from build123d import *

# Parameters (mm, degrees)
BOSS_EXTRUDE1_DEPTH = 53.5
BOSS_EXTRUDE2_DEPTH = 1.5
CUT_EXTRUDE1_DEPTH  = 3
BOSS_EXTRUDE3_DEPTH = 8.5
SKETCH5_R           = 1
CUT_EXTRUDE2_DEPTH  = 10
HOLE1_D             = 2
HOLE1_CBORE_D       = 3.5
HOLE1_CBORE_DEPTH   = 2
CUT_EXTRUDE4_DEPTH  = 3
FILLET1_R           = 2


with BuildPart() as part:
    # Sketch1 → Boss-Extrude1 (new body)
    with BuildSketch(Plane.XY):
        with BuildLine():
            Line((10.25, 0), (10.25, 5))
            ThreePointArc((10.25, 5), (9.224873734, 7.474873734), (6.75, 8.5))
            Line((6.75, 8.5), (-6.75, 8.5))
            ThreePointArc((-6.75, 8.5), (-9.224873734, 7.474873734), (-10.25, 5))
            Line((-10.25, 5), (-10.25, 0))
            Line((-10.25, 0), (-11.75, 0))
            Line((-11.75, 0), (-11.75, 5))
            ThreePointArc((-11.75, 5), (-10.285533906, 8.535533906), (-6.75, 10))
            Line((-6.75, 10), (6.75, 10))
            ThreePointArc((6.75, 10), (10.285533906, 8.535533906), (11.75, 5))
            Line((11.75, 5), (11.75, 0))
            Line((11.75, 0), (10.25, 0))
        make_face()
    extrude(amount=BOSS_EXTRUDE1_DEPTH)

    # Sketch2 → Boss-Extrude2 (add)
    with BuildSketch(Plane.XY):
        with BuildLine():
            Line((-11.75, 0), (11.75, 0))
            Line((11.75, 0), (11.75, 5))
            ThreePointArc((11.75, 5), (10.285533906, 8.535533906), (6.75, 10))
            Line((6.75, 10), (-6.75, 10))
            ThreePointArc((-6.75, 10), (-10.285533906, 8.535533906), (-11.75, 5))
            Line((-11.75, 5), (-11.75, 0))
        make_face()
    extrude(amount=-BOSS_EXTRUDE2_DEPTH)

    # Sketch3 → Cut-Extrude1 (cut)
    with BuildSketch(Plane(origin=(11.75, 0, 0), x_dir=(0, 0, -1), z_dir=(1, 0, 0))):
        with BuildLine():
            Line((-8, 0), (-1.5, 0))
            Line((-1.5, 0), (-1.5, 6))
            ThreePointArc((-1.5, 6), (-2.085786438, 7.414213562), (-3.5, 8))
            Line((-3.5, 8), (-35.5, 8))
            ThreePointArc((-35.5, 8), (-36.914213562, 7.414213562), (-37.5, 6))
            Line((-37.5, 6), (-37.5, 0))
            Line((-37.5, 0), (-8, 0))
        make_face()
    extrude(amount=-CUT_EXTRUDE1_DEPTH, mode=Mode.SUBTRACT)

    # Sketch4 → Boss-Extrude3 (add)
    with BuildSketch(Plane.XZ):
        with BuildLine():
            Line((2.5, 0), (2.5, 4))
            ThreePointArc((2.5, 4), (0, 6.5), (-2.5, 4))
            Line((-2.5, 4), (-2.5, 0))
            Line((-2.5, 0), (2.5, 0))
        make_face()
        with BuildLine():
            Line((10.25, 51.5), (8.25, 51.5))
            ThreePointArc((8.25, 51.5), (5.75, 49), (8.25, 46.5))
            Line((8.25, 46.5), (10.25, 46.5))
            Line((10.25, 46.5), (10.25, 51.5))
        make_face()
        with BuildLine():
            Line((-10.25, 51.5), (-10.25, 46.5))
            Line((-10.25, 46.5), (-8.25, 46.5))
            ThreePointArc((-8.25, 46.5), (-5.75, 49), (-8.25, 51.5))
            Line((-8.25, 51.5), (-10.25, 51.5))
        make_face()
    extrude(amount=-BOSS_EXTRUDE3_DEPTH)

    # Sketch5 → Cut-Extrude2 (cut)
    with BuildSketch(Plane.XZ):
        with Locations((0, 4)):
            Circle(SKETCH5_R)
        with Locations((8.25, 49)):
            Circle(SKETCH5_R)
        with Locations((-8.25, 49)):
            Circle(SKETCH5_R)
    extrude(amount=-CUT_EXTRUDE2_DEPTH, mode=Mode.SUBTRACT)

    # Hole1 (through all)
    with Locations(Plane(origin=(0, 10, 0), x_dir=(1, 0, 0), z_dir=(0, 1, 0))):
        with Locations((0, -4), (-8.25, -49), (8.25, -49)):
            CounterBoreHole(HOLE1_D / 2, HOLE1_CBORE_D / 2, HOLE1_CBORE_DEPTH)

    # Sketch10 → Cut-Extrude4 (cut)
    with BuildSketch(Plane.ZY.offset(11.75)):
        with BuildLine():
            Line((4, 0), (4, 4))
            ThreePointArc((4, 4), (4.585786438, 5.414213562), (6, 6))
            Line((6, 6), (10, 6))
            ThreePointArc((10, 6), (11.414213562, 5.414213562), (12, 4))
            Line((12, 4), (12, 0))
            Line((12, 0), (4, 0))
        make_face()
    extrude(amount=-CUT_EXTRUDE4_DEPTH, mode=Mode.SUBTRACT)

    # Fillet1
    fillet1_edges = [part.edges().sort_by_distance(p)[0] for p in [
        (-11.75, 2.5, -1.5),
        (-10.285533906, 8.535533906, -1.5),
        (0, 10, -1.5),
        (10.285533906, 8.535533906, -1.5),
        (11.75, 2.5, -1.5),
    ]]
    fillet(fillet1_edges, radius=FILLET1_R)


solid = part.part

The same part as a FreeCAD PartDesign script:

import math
import FreeCAD as App
import Part
import Sketcher

V = App.Vector
Q = App.Units.Quantity


def edges_at(feature, points):
    """Names of the edges that pass closest to the given points."""
    edges = feature.Shape.Edges
    near = lambda p: min(range(len(edges)), key=lambda i: edges[i].distToShape(Part.Vertex(*p))[0])
    return sorted({f"Edge{near(p) + 1}" for p in points})

doc = App.newDocument("Part")
body = doc.addObject("PartDesign::Body", "Body")

sketch1 = doc.addObject("Sketcher::SketchObject", "Sketch")
body.addObject(sketch1)
sketch1.AttachmentSupport = (doc.XY_Plane, [""])
sketch1.MapMode = "FlatFace"
sketch1.addGeometry(Part.LineSegment(V(10.2, 5, 0), V(10.2, 0, 0)), False)
sketch1.addGeometry(Part.LineSegment(V(10.2, 0, 0), V(11.8, 0, 0)), False)
sketch1.addGeometry(Part.LineSegment(V(11.8, 0, 0), V(11.8, 5, 0)), False)
sketch1.addGeometry(Part.ArcOfCircle(Part.Circle(V(6.8, 5, 0), V(0, 0, 1), 5), math.radians(0), math.radians(90)), False)
sketch1.addGeometry(Part.LineSegment(V(6.8, 10, 0), V(-6.8, 10, 0)), False)
sketch1.addGeometry(Part.ArcOfCircle(Part.Circle(V(-6.8, 5, 0), V(0, 0, 1), 5), math.radians(90), math.radians(180)), False)
sketch1.addGeometry(Part.LineSegment(V(-11.8, 5, 0), V(-11.8, 0, 0)), False)
sketch1.addGeometry(Part.LineSegment(V(-11.8, 0, 0), V(-10.2, 0, 0)), False)
sketch1.addGeometry(Part.LineSegment(V(-10.2, 0, 0), V(-10.2, 5, 0)), False)
sketch1.addGeometry(Part.ArcOfCircle(Part.Circle(V(-6.7, 5, 0), V(0, 0, 1), 3.5), math.radians(90), math.radians(180)), False)
sketch1.addGeometry(Part.LineSegment(V(-6.8, 8.5, 0), V(6.8, 8.5, 0)), False)
sketch1.addGeometry(Part.ArcOfCircle(Part.Circle(V(6.7, 5, 0), V(0, 0, 1), 3.5), math.radians(0), math.radians(90)), False)
sketch1.addConstraint(Sketcher.Constraint("Coincident", 0, 2, 1, 1))
sketch1.addConstraint(Sketcher.Constraint("Coincident", 1, 2, 2, 1))
sketch1.addConstraint(Sketcher.Constraint("Tangent", 2, 2, 3, 1))
sketch1.addConstraint(Sketcher.Constraint("Tangent", 3, 2, 4, 1))
sketch1.addConstraint(Sketcher.Constraint("Tangent", 4, 2, 5, 1))
sketch1.addConstraint(Sketcher.Constraint("Tangent", 5, 2, 6, 1))
sketch1.addConstraint(Sketcher.Constraint("Coincident", 6, 2, 7, 1))
sketch1.addConstraint(Sketcher.Constraint("Coincident", 7, 2, 8, 1))
sketch1.addConstraint(Sketcher.Constraint("Tangent", 8, 2, 9, 2))
sketch1.addConstraint(Sketcher.Constraint("Tangent", 9, 1, 10, 1))
sketch1.addConstraint(Sketcher.Constraint("Tangent", 10, 2, 11, 2))
sketch1.addConstraint(Sketcher.Constraint("Tangent", 11, 1, 0, 1))
sketch1.addConstraint(Sketcher.Constraint("Vertical", 0))
sketch1.addConstraint(Sketcher.Constraint("Horizontal", 1))
sketch1.addConstraint(Sketcher.Constraint("Vertical", 2))
sketch1.addConstraint(Sketcher.Constraint("Horizontal", 4))
sketch1.addConstraint(Sketcher.Constraint("Vertical", 6))
sketch1.addConstraint(Sketcher.Constraint("Horizontal", 7))
sketch1.addConstraint(Sketcher.Constraint("Vertical", 8))
sketch1.addConstraint(Sketcher.Constraint("Horizontal", 10))
sketch1.addConstraint(Sketcher.Constraint("Coincident", 9, 3, 5, 3))
sketch1.addConstraint(Sketcher.Constraint("Coincident", 11, 3, 3, 3))
sketch1.addConstraint(Sketcher.Constraint("Equal", 3, 5))
sketch1.addConstraint(Sketcher.Constraint("Symmetric", 1, 2, 6, 2, -1, 1))
sketch1.addConstraint(Sketcher.Constraint("PointOnObject", 0, 2, -1))
sketch1.addConstraint(Sketcher.Constraint("Radius", 3, Q("5 mm")))
sketch1.addConstraint(Sketcher.Constraint("Radius", 9, Q("3.5 mm")))
sketch1.addConstraint(Sketcher.Constraint("DistanceY", 0, 2, 0, 1, Q("5 mm")))
sketch1.addConstraint(Sketcher.Constraint("DistanceX", 4, 2, 4, 1, Q("13.5 mm")))
pad1 = doc.addObject("PartDesign::Pad", "Pad")
body.addObject(pad1)
pad1.Profile = sketch1
pad1.Length = 53.5

sketch2 = doc.addObject("Sketcher::SketchObject", "Sketch001")
body.addObject(sketch2)
sketch2.AttachmentSupport = (doc.XY_Plane, [""])
sketch2.MapMode = "FlatFace"
sketch2.addGeometry(Part.LineSegment(V(-12, 0, 0), V(12, 0, 0)), False)
sketch2.addGeometry(Part.LineSegment(V(12, 0, 0), V(12, 5, 0)), False)
sketch2.addGeometry(Part.ArcOfCircle(Part.Circle(V(7, 5, 0), V(0, 0, 1), 5), math.radians(0), math.radians(90)), False)
sketch2.addGeometry(Part.LineSegment(V(7, 10, 0), V(-7, 10, 0)), False)
sketch2.addGeometry(Part.ArcOfCircle(Part.Circle(V(-7, 5, 0), V(0, 0, 1), 5), math.radians(90), math.radians(180)), False)
sketch2.addGeometry(Part.LineSegment(V(-12, 5, 0), V(-12, 0, 0)), False)
sketch2.addConstraint(Sketcher.Constraint("Coincident", 0, 2, 1, 1))
sketch2.addConstraint(Sketcher.Constraint("Tangent", 1, 2, 2, 1))
sketch2.addConstraint(Sketcher.Constraint("Tangent", 2, 2, 3, 1))
sketch2.addConstraint(Sketcher.Constraint("Tangent", 3, 2, 4, 1))
sketch2.addConstraint(Sketcher.Constraint("Tangent", 4, 2, 5, 1))
sketch2.addConstraint(Sketcher.Constraint("Coincident", 5, 2, 0, 1))
sketch2.addConstraint(Sketcher.Constraint("Horizontal", 0))
sketch2.addConstraint(Sketcher.Constraint("Vertical", 1))
sketch2.addConstraint(Sketcher.Constraint("Horizontal", 3))
sketch2.addConstraint(Sketcher.Constraint("Vertical", 5))
sketch2.addConstraint(Sketcher.Constraint("Equal", 2, 4))
sketch2.addConstraint(Sketcher.Constraint("Symmetric", 0, 2, 5, 2, -1, 1))
sketch2.addConstraint(Sketcher.Constraint("Radius", 2, Q("5 mm")))
sketch2.addConstraint(Sketcher.Constraint("DistanceY", 1, 1, 1, 2, Q("5 mm")))
sketch2.addConstraint(Sketcher.Constraint("DistanceX", 0, 1, 0, 2, Q("23.5 mm")))
pad2 = doc.addObject("PartDesign::Pad", "Pad001")
body.addObject(pad2)
pad2.Profile = sketch2
pad2.Length = 1.5
pad2.Reversed = True

sketch3 = doc.addObject("Sketcher::SketchObject", "Sketch002")
body.addObject(sketch3)
sketch3.AttachmentSupport = (doc.YZ_Plane, [""])
sketch3.MapMode = "FlatFace"
sketch3.AttachmentOffset = App.Placement(V(0, 0, 11.75), App.Rotation())
sketch3.addGeometry(Part.LineSegment(V(0, 1.5, 0), V(6, 1.5, 0)), False)
sketch3.addGeometry(Part.ArcOfCircle(Part.Circle(V(6, 3.5, 0), V(0, 0, 1), 2), math.radians(-90), math.radians(0)), False)
sketch3.addGeometry(Part.LineSegment(V(8, 3.5, 0), V(8, 35.5, 0)), False)
sketch3.addGeometry(Part.ArcOfCircle(Part.Circle(V(6, 35.5, 0), V(0, 0, 1), 2), math.radians(0), math.radians(90)), False)
sketch3.addGeometry(Part.LineSegment(V(6, 37.5, 0), V(0, 37.5, 0)), False)
sketch3.addGeometry(Part.LineSegment(V(0, 37.5, 0), V(0, 1.5, 0)), False)
sketch3.addConstraint(Sketcher.Constraint("Tangent", 0, 2, 1, 1))
sketch3.addConstraint(Sketcher.Constraint("Tangent", 1, 2, 2, 1))
sketch3.addConstraint(Sketcher.Constraint("Tangent", 2, 2, 3, 1))
sketch3.addConstraint(Sketcher.Constraint("Tangent", 3, 2, 4, 1))
sketch3.addConstraint(Sketcher.Constraint("Coincident", 4, 2, 5, 1))
sketch3.addConstraint(Sketcher.Constraint("Coincident", 5, 2, 0, 1))
sketch3.addConstraint(Sketcher.Constraint("Horizontal", 0))
sketch3.addConstraint(Sketcher.Constraint("Vertical", 2))
sketch3.addConstraint(Sketcher.Constraint("Horizontal", 4))
sketch3.addConstraint(Sketcher.Constraint("Vertical", 5))
sketch3.addConstraint(Sketcher.Constraint("Equal", 1, 3))
sketch3.addConstraint(Sketcher.Constraint("PointOnObject", 4, 2, -2))
sketch3.addConstraint(Sketcher.Constraint("Radius", 1, Q("2 mm")))
sketch3.addConstraint(Sketcher.Constraint("DistanceX", 0, 1, 0, 2, Q("6 mm")))
sketch3.addConstraint(Sketcher.Constraint("DistanceY", 2, 1, 2, 2, Q("32 mm")))
sketch3.addConstraint(Sketcher.Constraint("DistanceY", -1, 1, 1, 3, Q("3.5 mm")))
pocket1 = doc.addObject("PartDesign::Pocket", "Pocket")
body.addObject(pocket1)
pocket1.Profile = sketch3
pocket1.Length = 3

sketch4 = doc.addObject("Sketcher::SketchObject", "Sketch003")
body.addObject(sketch4)
sketch4.AttachmentSupport = (doc.XZ_Plane, [""])
sketch4.MapMode = "FlatFace"
sketch4.addGeometry(Part.LineSegment(V(2.5, 0, 0), V(2.5, 4, 0)), False)
sketch4.addGeometry(Part.ArcOfCircle(Part.Circle(V(0, 4, 0), V(0, 0, 1), 2.5), math.radians(0), math.radians(180)), False)
sketch4.addGeometry(Part.LineSegment(V(-2.5, 4, 0), V(-2.5, 0, 0)), False)
sketch4.addGeometry(Part.LineSegment(V(-2.5, 0, 0), V(2.5, 0, 0)), False)
sketch4.addGeometry(Part.LineSegment(V(10.2, 51.5, 0), V(8.2, 51.5, 0)), False)
sketch4.addGeometry(Part.ArcOfCircle(Part.Circle(V(8.2, 49, 0), V(0, 0, 1), 2.5), math.radians(90), math.radians(270)), False)
sketch4.addGeometry(Part.LineSegment(V(8.2, 46.5, 0), V(10.2, 46.5, 0)), False)
sketch4.addGeometry(Part.LineSegment(V(10.2, 46.5, 0), V(10.2, 51.5, 0)), False)
sketch4.addGeometry(Part.LineSegment(V(-10.2, 51.5, 0), V(-10.2, 46.5, 0)), False)
sketch4.addGeometry(Part.LineSegment(V(-10.2, 46.5, 0), V(-8.2, 46.5, 0)), False)
sketch4.addGeometry(Part.ArcOfCircle(Part.Circle(V(-8.2, 49, 0), V(0, 0, 1), 2.5), math.radians(-90), math.radians(90)), False)
sketch4.addGeometry(Part.LineSegment(V(-8.2, 51.5, 0), V(-10.2, 51.5, 0)), False)
sketch4.addConstraint(Sketcher.Constraint("Tangent", 0, 2, 1, 1))
sketch4.addConstraint(Sketcher.Constraint("Tangent", 1, 2, 2, 1))
sketch4.addConstraint(Sketcher.Constraint("Coincident", 2, 2, 3, 1))
sketch4.addConstraint(Sketcher.Constraint("Coincident", 3, 2, 0, 1))
sketch4.addConstraint(Sketcher.Constraint("Tangent", 4, 2, 5, 1))
sketch4.addConstraint(Sketcher.Constraint("Tangent", 5, 2, 6, 1))
sketch4.addConstraint(Sketcher.Constraint("Coincident", 6, 2, 7, 1))
sketch4.addConstraint(Sketcher.Constraint("Coincident", 7, 2, 4, 1))
sketch4.addConstraint(Sketcher.Constraint("Coincident", 8, 2, 9, 1))
sketch4.addConstraint(Sketcher.Constraint("Tangent", 9, 2, 10, 1))
sketch4.addConstraint(Sketcher.Constraint("Tangent", 10, 2, 11, 1))
sketch4.addConstraint(Sketcher.Constraint("Coincident", 11, 2, 8, 1))
sketch4.addConstraint(Sketcher.Constraint("Vertical", 0))
sketch4.addConstraint(Sketcher.Constraint("Vertical", 2))
sketch4.addConstraint(Sketcher.Constraint("Horizontal", 3))
sketch4.addConstraint(Sketcher.Constraint("Horizontal", 4))
sketch4.addConstraint(Sketcher.Constraint("Horizontal", 6))
sketch4.addConstraint(Sketcher.Constraint("Vertical", 7))
sketch4.addConstraint(Sketcher.Constraint("Vertical", 8))
sketch4.addConstraint(Sketcher.Constraint("Horizontal", 9))
sketch4.addConstraint(Sketcher.Constraint("Horizontal", 11))
sketch4.addConstraint(Sketcher.Constraint("Equal", 1, 5))
sketch4.addConstraint(Sketcher.Constraint("Equal", 5, 10))
sketch4.addConstraint(Sketcher.Constraint("Symmetric", 2, 2, 3, 2, -1, 1))
sketch4.addConstraint(Sketcher.Constraint("Symmetric", 5, 3, 10, 3, -2))
sketch4.addConstraint(Sketcher.Constraint("Equal", 6, 9))
sketch4.addConstraint(Sketcher.Constraint("Radius", 1, Q("2.5 mm")))
sketch4.addConstraint(Sketcher.Constraint("DistanceX", 4, 2, 4, 1, Q("2 mm")))
sketch4.addConstraint(Sketcher.Constraint("DistanceY", 0, 1, 0, 2, Q("4 mm")))
sketch4.addConstraint(Sketcher.Constraint("DistanceY", -1, 1, 5, 3, Q("49 mm")))
sketch4.addConstraint(Sketcher.Constraint("DistanceX", 10, 3, 5, 3, Q("16.5 mm")))
pad3 = doc.addObject("PartDesign::Pad", "Pad002")
body.addObject(pad3)
pad3.Profile = sketch4
pad3.Length = 8.5
pad3.Reversed = True

sketch5 = doc.addObject("Sketcher::SketchObject", "Sketch004")
body.addObject(sketch5)
sketch5.AttachmentSupport = (doc.XZ_Plane, [""])
sketch5.MapMode = "FlatFace"
sketch5.addGeometry(Part.Circle(V(0, 4, 0), V(0, 0, 1), 1), False)
sketch5.addGeometry(Part.Circle(V(8.2, 49, 0), V(0, 0, 1), 1), False)
sketch5.addGeometry(Part.Circle(V(-8.2, 49, 0), V(0, 0, 1), 1), False)
sketch5.addConstraint(Sketcher.Constraint("Equal", 0, 1))
sketch5.addConstraint(Sketcher.Constraint("Equal", 1, 2))
sketch5.addConstraint(Sketcher.Constraint("Symmetric", 1, 3, 2, 3, -2))
sketch5.addConstraint(Sketcher.Constraint("PointOnObject", 0, 3, -2))
sketch5.addConstraint(Sketcher.Constraint("Diameter", 0, Q("2 mm")))
sketch5.addConstraint(Sketcher.Constraint("DistanceY", -1, 1, 0, 3, Q("4 mm")))
sketch5.addConstraint(Sketcher.Constraint("DistanceY", -1, 1, 1, 3, Q("49 mm")))
sketch5.addConstraint(Sketcher.Constraint("DistanceX", 2, 3, 1, 3, Q("16.5 mm")))
pocket2 = doc.addObject("PartDesign::Pocket", "Pocket001")
body.addObject(pocket2)
pocket2.Profile = sketch5
pocket2.Length = 10

sketch6 = doc.addObject("Sketcher::SketchObject", "Sketch005")
body.addObject(sketch6)
sketch6.AttachmentSupport = (doc.XZ_Plane, [""])
sketch6.MapMode = "FlatFace"
sketch6.AttachmentOffset = App.Placement(V(0, 0, -10), App.Rotation())
sketch6.addGeometry(Part.Circle(V(0, 4, 0), V(0, 0, 1), 1), False)
sketch6.addGeometry(Part.Circle(V(-8.2, 49, 0), V(0, 0, 1), 1), False)
sketch6.addGeometry(Part.Circle(V(8.2, 49, 0), V(0, 0, 1), 1), False)
sketch6.addConstraint(Sketcher.Constraint("Equal", 0, 1))
sketch6.addConstraint(Sketcher.Constraint("Equal", 1, 2))
sketch6.addConstraint(Sketcher.Constraint("Symmetric", 1, 3, 2, 3, -2))
sketch6.addConstraint(Sketcher.Constraint("PointOnObject", 0, 3, -2))
sketch6.addConstraint(Sketcher.Constraint("Diameter", 0, Q("2 mm")))
sketch6.addConstraint(Sketcher.Constraint("DistanceY", -1, 1, 0, 3, Q("4 mm")))
sketch6.addConstraint(Sketcher.Constraint("DistanceY", -1, 1, 1, 3, Q("49 mm")))
sketch6.addConstraint(Sketcher.Constraint("DistanceX", 1, 3, 2, 3, Q("16.5 mm")))
doc.recompute()
hole = doc.addObject("PartDesign::Hole", "Hole")
body.addObject(hole)
hole.Profile = sketch6
hole.ThreadType = "None"
hole.Diameter = 2
hole.DepthType = "ThroughAll"
hole.HoleCutType = "Counterbore"
hole.HoleCutDiameter = 3.5
hole.HoleCutDepth = 2
hole.Reversed = True

sketch7 = doc.addObject("Sketcher::SketchObject", "Sketch006")
body.addObject(sketch7)
sketch7.AttachmentSupport = (doc.YZ_Plane, [""])
sketch7.MapMode = "FlatFace"
sketch7.AttachmentOffset = App.Placement(V(0, 0, -11.75), App.Rotation())
sketch7.addGeometry(Part.LineSegment(V(4, 4, 0), V(0, 4, 0)), False)
sketch7.addGeometry(Part.LineSegment(V(0, 4, 0), V(0, 12, 0)), False)
sketch7.addGeometry(Part.LineSegment(V(0, 12, 0), V(4, 12, 0)), False)
sketch7.addGeometry(Part.ArcOfCircle(Part.Circle(V(4, 10, 0), V(0, 0, 1), 2), math.radians(0), math.radians(90)), False)
sketch7.addGeometry(Part.LineSegment(V(6, 10, 0), V(6, 6, 0)), False)
sketch7.addGeometry(Part.ArcOfCircle(Part.Circle(V(4, 6, 0), V(0, 0, 1), 2), math.radians(-90), math.radians(0)), False)
sketch7.addConstraint(Sketcher.Constraint("Coincident", 0, 2, 1, 1))
sketch7.addConstraint(Sketcher.Constraint("Coincident", 1, 2, 2, 1))
sketch7.addConstraint(Sketcher.Constraint("Tangent", 2, 2, 3, 2))
sketch7.addConstraint(Sketcher.Constraint("Tangent", 3, 1, 4, 1))
sketch7.addConstraint(Sketcher.Constraint("Tangent", 4, 2, 5, 2))
sketch7.addConstraint(Sketcher.Constraint("Tangent", 5, 1, 0, 1))
sketch7.addConstraint(Sketcher.Constraint("Horizontal", 0))
sketch7.addConstraint(Sketcher.Constraint("Vertical", 1))
sketch7.addConstraint(Sketcher.Constraint("Horizontal", 2))
sketch7.addConstraint(Sketcher.Constraint("Vertical", 4))
sketch7.addConstraint(Sketcher.Constraint("Equal", 3, 5))
sketch7.addConstraint(Sketcher.Constraint("PointOnObject", 0, 2, -2))
sketch7.addConstraint(Sketcher.Constraint("Equal", 2, 4))
sketch7.addConstraint(Sketcher.Constraint("Radius", 3, Q("2 mm")))
sketch7.addConstraint(Sketcher.Constraint("DistanceX", 0, 2, 0, 1, Q("4 mm")))
sketch7.addConstraint(Sketcher.Constraint("DistanceY", -1, 1, 3, 3, Q("10 mm")))
pocket3 = doc.addObject("PartDesign::Pocket", "Pocket002")
body.addObject(pocket3)
pocket3.Profile = sketch7
pocket3.Length = 3
pocket3.Reversed = True
doc.recompute()

fillet = doc.addObject("PartDesign::Fillet", "Fillet")
body.addObject(fillet)
fillet.Base = (pocket3, edges_at(pocket3, [
    (-11.75, 2.5, -1.5),
    (-10.286, 8.536, -1.5),
    (0, 10, -1.5),
    (10.286, 8.536, -1.5),
    (11.75, 2.5, -1.5),
]))
fillet.Radius = 2

doc.recompute()
